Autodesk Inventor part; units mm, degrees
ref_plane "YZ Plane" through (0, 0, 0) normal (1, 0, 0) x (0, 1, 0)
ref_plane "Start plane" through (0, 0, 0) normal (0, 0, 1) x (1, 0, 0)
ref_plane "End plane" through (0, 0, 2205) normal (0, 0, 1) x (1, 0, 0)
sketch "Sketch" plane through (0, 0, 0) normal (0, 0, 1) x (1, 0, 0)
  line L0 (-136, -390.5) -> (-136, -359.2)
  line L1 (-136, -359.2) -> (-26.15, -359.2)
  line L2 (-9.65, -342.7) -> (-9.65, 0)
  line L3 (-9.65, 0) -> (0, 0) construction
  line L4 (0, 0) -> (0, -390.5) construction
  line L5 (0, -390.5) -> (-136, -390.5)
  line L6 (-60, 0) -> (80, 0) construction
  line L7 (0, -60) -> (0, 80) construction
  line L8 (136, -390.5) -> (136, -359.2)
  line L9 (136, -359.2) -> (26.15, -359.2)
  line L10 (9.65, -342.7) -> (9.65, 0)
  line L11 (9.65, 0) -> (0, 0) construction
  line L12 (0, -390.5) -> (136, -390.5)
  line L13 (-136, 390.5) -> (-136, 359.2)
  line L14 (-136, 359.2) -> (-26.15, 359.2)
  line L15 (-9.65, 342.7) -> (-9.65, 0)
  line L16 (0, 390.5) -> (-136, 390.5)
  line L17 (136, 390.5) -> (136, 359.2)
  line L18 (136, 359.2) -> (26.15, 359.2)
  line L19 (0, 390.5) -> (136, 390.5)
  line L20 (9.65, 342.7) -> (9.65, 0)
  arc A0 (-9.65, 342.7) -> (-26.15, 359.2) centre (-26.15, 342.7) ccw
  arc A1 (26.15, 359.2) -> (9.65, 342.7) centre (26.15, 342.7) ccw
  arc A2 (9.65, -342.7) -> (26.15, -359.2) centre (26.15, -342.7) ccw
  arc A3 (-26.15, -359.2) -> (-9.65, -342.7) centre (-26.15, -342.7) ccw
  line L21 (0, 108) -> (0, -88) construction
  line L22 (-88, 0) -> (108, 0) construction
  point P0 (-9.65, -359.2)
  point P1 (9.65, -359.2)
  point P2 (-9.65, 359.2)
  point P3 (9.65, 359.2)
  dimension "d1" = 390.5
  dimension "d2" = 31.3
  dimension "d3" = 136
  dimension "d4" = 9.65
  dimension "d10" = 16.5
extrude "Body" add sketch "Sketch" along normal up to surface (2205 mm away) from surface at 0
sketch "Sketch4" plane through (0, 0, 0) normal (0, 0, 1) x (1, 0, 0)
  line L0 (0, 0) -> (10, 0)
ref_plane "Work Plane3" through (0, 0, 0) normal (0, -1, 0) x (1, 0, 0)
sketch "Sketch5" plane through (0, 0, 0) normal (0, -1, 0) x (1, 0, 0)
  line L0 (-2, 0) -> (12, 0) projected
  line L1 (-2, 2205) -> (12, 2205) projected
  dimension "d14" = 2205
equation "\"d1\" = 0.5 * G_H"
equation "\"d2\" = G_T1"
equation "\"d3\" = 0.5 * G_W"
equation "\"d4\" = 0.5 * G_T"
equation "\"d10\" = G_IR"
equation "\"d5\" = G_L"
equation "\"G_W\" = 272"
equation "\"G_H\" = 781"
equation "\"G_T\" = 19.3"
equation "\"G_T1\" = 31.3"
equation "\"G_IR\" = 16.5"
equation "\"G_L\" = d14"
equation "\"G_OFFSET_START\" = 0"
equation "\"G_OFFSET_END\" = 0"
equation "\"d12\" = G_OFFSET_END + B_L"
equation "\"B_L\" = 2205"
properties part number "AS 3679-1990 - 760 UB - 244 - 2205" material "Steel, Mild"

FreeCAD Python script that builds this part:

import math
import FreeCAD as App
import Part
import Sketcher
Q = App.Units.Quantity

doc = App.newDocument("Part")
body = doc.addObject("PartDesign::Body", "Body")

sketch1 = body.newObject("Sketcher::SketchObject", "Sketch")
sketch1.AttachmentSupport = (doc.getObject("XY_Plane"), [""])
sketch1.MapMode = "FlatFace"
sketch1.addGeometry([
    Part.LineSegment(App.Vector(-136, -359, 0), App.Vector(-136, -390, 0)),
    Part.LineSegment(App.Vector(-136, -390, 0), App.Vector(136, -390, 0)),
    Part.LineSegment(App.Vector(136, -390, 0), App.Vector(136, -359, 0)),
    Part.LineSegment(App.Vector(136, -359, 0), App.Vector(26, -359, 0)),
    Part.ArcOfCircle(Part.Circle(App.Vector(26, -343, 0), App.Vector(0, 0, 1), 16), math.radians(180), math.radians(270)),
    Part.LineSegment(App.Vector(10, -343, 0), App.Vector(10, 343, 0)),
    Part.ArcOfCircle(Part.Circle(App.Vector(26, 343, 0), App.Vector(0, 0, 1), 16), math.radians(90), math.radians(180)),
    Part.LineSegment(App.Vector(26, 359, 0), App.Vector(136, 359, 0)),
    Part.LineSegment(App.Vector(136, 359, 0), App.Vector(136, 390, 0)),
    Part.LineSegment(App.Vector(136, 390, 0), App.Vector(-136, 390, 0)),
    Part.LineSegment(App.Vector(-136, 390, 0), App.Vector(-136, 359, 0)),
    Part.LineSegment(App.Vector(-136, 359, 0), App.Vector(-26, 359, 0)),
    Part.ArcOfCircle(Part.Circle(App.Vector(-26, 343, 0), App.Vector(0, 0, 1), 16), math.radians(0), math.radians(90)),
    Part.LineSegment(App.Vector(-10, 343, 0), App.Vector(-10, -343, 0)),
    Part.ArcOfCircle(Part.Circle(App.Vector(-26, -343, 0), App.Vector(0, 0, 1), 16), math.radians(-90), math.radians(0)),
    Part.LineSegment(App.Vector(-26, -359, 0), App.Vector(-136, -359, 0)),
], False)
sketch1.addConstraint([
    Sketcher.Constraint("Coincident", 0, 2, 1, 1),
    Sketcher.Constraint("Coincident", 1, 2, 2, 1),
    Sketcher.Constraint("Coincident", 2, 2, 3, 1),
    Sketcher.Constraint("Tangent", 3, 2, 4, 2),
    Sketcher.Constraint("Tangent", 4, 1, 5, 1),
    Sketcher.Constraint("Tangent", 5, 2, 6, 2),
    Sketcher.Constraint("Tangent", 6, 1, 7, 1),
    Sketcher.Constraint("Coincident", 7, 2, 8, 1),
    Sketcher.Constraint("Coincident", 8, 2, 9, 1),
    Sketcher.Constraint("Coincident", 9, 2, 10, 1),
    Sketcher.Constraint("Coincident", 10, 2, 11, 1),
    Sketcher.Constraint("Tangent", 11, 2, 12, 2),
    Sketcher.Constraint("Tangent", 12, 1, 13, 1),
    Sketcher.Constraint("Tangent", 13, 2, 14, 2),
    Sketcher.Constraint("Tangent", 14, 1, 15, 1),
    Sketcher.Constraint("Coincident", 15, 2, 0, 1),
    Sketcher.Constraint("Vertical", 0),
    Sketcher.Constraint("Horizontal", 1),
    Sketcher.Constraint("Vertical", 2),
    Sketcher.Constraint("Horizontal", 3),
    Sketcher.Constraint("Vertical", 5),
    Sketcher.Constraint("Horizontal", 7),
    Sketcher.Constraint("Vertical", 8),
    Sketcher.Constraint("Horizontal", 9),
    Sketcher.Constraint("Vertical", 10),
    Sketcher.Constraint("Horizontal", 11),
    Sketcher.Constraint("Vertical", 13),
    Sketcher.Constraint("Horizontal", 15),
    Sketcher.Constraint("Equal", 4, 6),
    Sketcher.Constraint("Equal", 6, 12),
    Sketcher.Constraint("Equal", 12, 14),
    Sketcher.Constraint("Symmetric", 4, 3, 12, 3, -1, 1),
    Sketcher.Constraint("Symmetric", 0, 2, 8, 2, -1, 1),
    Sketcher.Constraint("Symmetric", 7, 2, 10, 2, -2),
    Sketcher.Constraint("Symmetric", 2, 2, 15, 2, -2),
    Sketcher.Constraint("Radius", 4, Q("16.5 mm")),
    Sketcher.Constraint("DistanceY", 0, 2, 0, 1, Q("31.3 mm")),
    Sketcher.Constraint("DistanceX", 0, 2, -1, 1, Q("136 mm")),
    Sketcher.Constraint("DistanceY", 0, 2, -1, 1, Q("390.5 mm")),
    Sketcher.Constraint("DistanceX", -1, 1, 4, 1, Q("9.65 mm")),
])
pad1 = body.newObject("PartDesign::Pad", "Pad")
pad1.Profile = sketch1
pad1.Length = 2205

doc.recompute()
